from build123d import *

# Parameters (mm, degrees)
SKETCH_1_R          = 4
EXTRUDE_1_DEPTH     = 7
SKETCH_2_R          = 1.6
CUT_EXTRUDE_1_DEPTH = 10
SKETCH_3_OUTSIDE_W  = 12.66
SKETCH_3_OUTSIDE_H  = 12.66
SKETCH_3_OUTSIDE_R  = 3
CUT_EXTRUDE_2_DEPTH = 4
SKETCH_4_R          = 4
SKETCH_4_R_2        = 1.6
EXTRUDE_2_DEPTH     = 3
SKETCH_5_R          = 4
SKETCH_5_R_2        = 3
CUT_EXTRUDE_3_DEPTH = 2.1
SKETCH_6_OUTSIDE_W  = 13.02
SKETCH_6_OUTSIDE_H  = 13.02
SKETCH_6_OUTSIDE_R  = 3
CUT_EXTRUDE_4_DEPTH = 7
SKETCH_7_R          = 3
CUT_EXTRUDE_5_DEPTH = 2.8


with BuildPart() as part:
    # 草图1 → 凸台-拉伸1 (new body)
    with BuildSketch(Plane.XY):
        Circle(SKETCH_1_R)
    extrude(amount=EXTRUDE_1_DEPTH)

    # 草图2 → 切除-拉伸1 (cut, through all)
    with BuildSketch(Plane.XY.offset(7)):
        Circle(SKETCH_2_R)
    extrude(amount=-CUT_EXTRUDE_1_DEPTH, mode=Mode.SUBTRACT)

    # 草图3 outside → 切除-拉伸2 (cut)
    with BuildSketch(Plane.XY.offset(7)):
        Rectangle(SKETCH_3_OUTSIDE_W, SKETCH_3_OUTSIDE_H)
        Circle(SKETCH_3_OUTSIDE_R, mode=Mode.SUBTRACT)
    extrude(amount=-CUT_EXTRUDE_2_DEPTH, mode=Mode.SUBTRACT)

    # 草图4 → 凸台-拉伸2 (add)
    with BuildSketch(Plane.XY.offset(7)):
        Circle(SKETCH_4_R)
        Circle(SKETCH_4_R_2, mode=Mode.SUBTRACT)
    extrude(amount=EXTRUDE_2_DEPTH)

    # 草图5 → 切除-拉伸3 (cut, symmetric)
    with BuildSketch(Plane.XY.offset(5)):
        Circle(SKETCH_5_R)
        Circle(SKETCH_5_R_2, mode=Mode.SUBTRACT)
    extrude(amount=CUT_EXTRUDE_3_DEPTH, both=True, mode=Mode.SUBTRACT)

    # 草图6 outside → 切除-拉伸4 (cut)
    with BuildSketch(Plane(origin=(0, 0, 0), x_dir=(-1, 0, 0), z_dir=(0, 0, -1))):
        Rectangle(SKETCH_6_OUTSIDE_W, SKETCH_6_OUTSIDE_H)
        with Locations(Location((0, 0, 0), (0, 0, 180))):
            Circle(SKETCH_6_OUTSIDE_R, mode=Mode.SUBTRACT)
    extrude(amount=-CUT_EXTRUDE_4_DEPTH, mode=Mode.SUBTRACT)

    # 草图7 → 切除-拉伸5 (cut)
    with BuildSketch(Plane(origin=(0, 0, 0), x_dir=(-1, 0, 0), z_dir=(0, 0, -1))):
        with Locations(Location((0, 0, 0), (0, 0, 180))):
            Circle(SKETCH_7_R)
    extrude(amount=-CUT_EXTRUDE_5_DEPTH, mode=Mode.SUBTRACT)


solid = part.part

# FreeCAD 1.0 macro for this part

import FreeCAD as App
import Part
import Sketcher
Q = App.Units.Quantity

doc = App.newDocument("Part")
body = doc.addObject("PartDesign::Body", "Body")

# Sketch on XY plane
sketch1 = body.newObject("Sketcher::SketchObject", "Sketch")
sketch1.AttachmentSupport = (doc.getObject("XY_Plane"), [""])
sketch1.MapMode = "FlatFace"
sketch1.addGeometry(Part.Circle(App.Vector(0, 0, 0), App.Vector(0, 0, 1), 4), False)
sketch1.addConstraint([
    Sketcher.Constraint("Coincident", 0, 3, -1, 1),
    Sketcher.Constraint("Diameter", 0, Q("8 mm")),
])
pad1 = body.newObject("PartDesign::Pad", "Pad")
pad1.Profile = sketch1
pad1.Length = 7

# Sketch on XY plane
sketch2 = body.newObject("Sketcher::SketchObject", "Sketch001")
sketch2.AttachmentSupport = (doc.getObject("XY_Plane"), [""])
sketch2.MapMode = "FlatFace"
sketch2.AttachmentOffset = App.Placement(App.Vector(0, 0, 7), App.Rotation())
sketch2.addGeometry(Part.Circle(App.Vector(0, 0, 0), App.Vector(0, 0, 1), 1.6), False)
sketch2.addConstraint([
    Sketcher.Constraint("Coincident", 0, 3, -1, 1),
    Sketcher.Constraint("Diameter", 0, Q("3.2 mm")),
])
pocket1 = body.newObject("PartDesign::Pocket", "Pocket")
pocket1.Profile = sketch2
pocket1.Type = "ThroughAll"

# Sketch on XY plane
sketch3 = body.newObject("Sketcher::SketchObject", "Sketch002")
sketch3.AttachmentSupport = (doc.getObject("XY_Plane"), [""])
sketch3.MapMode = "FlatFace"
sketch3.AttachmentOffset = App.Placement(App.Vector(0, 0, 7), App.Rotation())
sketch3.addGeometry([
    Part.LineSegment(App.Vector(-6.3, 6.3, 0), App.Vector(-6.3, -6.3, 0)),  # 0
    Part.LineSegment(App.Vector(-6.3, -6.3, 0), App.Vector(6.3, -6.3, 0)),  # 1
    Part.LineSegment(App.Vector(6.3, -6.3, 0), App.Vector(6.3, 6.3, 0)),  # 2
    Part.LineSegment(App.Vector(6.3, 6.3, 0), App.Vector(-6.3, 6.3, 0)),  # 3
    Part.Circle(App.Vector(0, 0, 0), App.Vector(0, 0, 1), 3),  # 4
], False)
sketch3.addConstraint([
    Sketcher.Constraint("Coincident", 0, 2, 1, 1),
    Sketcher.Constraint("Coincident", 1, 2, 2, 1),
    Sketcher.Constraint("Coincident", 2, 2, 3, 1),
    Sketcher.Constraint("Coincident", 3, 2, 0, 1),
    Sketcher.Constraint("Vertical", 0),
    Sketcher.Constraint("Horizontal", 1),
    Sketcher.Constraint("Vertical", 2),
    Sketcher.Constraint("Horizontal", 3),
    Sketcher.Constraint("Coincident", 4, 3, -1, 1),
    Sketcher.Constraint("Symmetric", 0, 2, 2, 2, -1, 1),
    Sketcher.Constraint("Equal", 3, 0),
    Sketcher.Constraint("Diameter", 4, Q("6 mm")),
    Sketcher.Constraint("DistanceX", 1, 1, 1, 2, Q("12.66 mm")),
])
pocket2 = body.newObject("PartDesign::Pocket", "Pocket001")
pocket2.Profile = sketch3
pocket2.Length = 4

# Sketch on XY plane
sketch4 = body.newObject("Sketcher::SketchObject", "Sketch003")
sketch4.AttachmentSupport = (doc.getObject("XY_Plane"), [""])
sketch4.MapMode = "FlatFace"
sketch4.AttachmentOffset = App.Placement(App.Vector(0, 0, 7), App.Rotation())
sketch4.addGeometry([
    Part.Circle(App.Vector(0, 0, 0), App.Vector(0, 0, 1), 4),
    Part.Circle(App.Vector(0, 0, 0), App.Vector(0, 0, 1), 1.6),
], False)
sketch4.addConstraint([
    Sketcher.Constraint("Coincident", 0, 3, -1, 1),
    Sketcher.Constraint("Coincident", 1, 3, -1, 1),
    Sketcher.Constraint("Diameter", 0, Q("8 mm")),
    Sketcher.Constraint("Diameter", 1, Q("3.2 mm")),
])
pad2 = body.newObject("PartDesign::Pad", "Pad001")
pad2.Profile = sketch4
pad2.Length = 3

# Sketch on XY plane
sketch5 = body.newObject("Sketcher::SketchObject", "Sketch004")
sketch5.AttachmentSupport = (doc.getObject("XY_Plane"), [""])
sketch5.MapMode = "FlatFace"
sketch5.AttachmentOffset = App.Placement(App.Vector(0, 0, 5), App.Rotation())
sketch5.addGeometry([
    Part.Circle(App.Vector(0, 0, 0), App.Vector(0, 0, 1), 4),
    Part.Circle(App.Vector(0, 0, 0), App.Vector(0, 0, 1), 3),
], False)
sketch5.addConstraint([
    Sketcher.Constraint("Coincident", 0, 3, -1, 1),
    Sketcher.Constraint("Coincident", 1, 3, -1, 1),
    Sketcher.Constraint("Diameter", 0, Q("8 mm")),
    Sketcher.Constraint("Diameter", 1, Q("6 mm")),
])
pocket3 = body.newObject("PartDesign::Pocket", "Pocket002")
pocket3.Profile = sketch5
pocket3.Length = 4.2
pocket3.Midplane = True

# Sketch on XY plane
sketch6 = body.newObject("Sketcher::SketchObject", "Sketch005")
sketch6.AttachmentSupport = (doc.getObject("XY_Plane"), [""])
sketch6.MapMode = "FlatFace"
sketch6.addGeometry([
    Part.LineSegment(App.Vector(6.5, 6.5, 0), App.Vector(6.5, -6.5, 0)),  # 0
    Part.LineSegment(App.Vector(6.5, -6.5, 0), App.Vector(-6.5, -6.5, 0)),  # 1
    Part.LineSegment(App.Vector(-6.5, -6.5, 0), App.Vector(-6.5, 6.5, 0)),  # 2
    Part.LineSegment(App.Vector(-6.5, 6.5, 0), App.Vector(6.5, 6.5, 0)),  # 3
    Part.Circle(App.Vector(0, 0, 0), App.Vector(0, 0, 1), 3),  # 4
], False)
sketch6.addConstraint([
    Sketcher.Constraint("Coincident", 0, 2, 1, 1),
    Sketcher.Constraint("Coincident", 1, 2, 2, 1),
    Sketcher.Constraint("Coincident", 2, 2, 3, 1),
    Sketcher.Constraint("Coincident", 3, 2, 0, 1),
    Sketcher.Constraint("Vertical", 0),
    Sketcher.Constraint("Horizontal", 1),
    Sketcher.Constraint("Vertical", 2),
    Sketcher.Constraint("Horizontal", 3),
    Sketcher.Constraint("Coincident", 4, 3, -1, 1),
    Sketcher.Constraint("Symmetric", 0, 2, 2, 2, -1, 1),
    Sketcher.Constraint("Equal", 3, 0),
    Sketcher.Constraint("Diameter", 4, Q("6 mm")),
    Sketcher.Constraint("DistanceX", 1, 2, 1, 1, Q("13.02 mm")),
])
pocket4 = body.newObject("PartDesign::Pocket", "Pocket003")
pocket4.Profile = sketch6
pocket4.Length = 7
pocket4.Reversed = True

# Sketch on XY plane
sketch7 = body.newObject("Sketcher::SketchObject", "Sketch006")
sketch7.AttachmentSupport = (doc.getObject("XY_Plane"), [""])
sketch7.MapMode = "FlatFace"
sketch7.addGeometry(Part.Circle(App.Vector(0, 0, 0), App.Vector(0, 0, 1), 3), False)
sketch7.addConstraint([
    Sketcher.Constraint("Coincident", 0, 3, -1, 1),
    Sketcher.Constraint("Diameter", 0, Q("6 mm")),
])
pocket5 = body.newObject("PartDesign::Pocket", "Pocket004")
pocket5.Profile = sketch7
pocket5.Length = 2.8
pocket5.Reversed = True

doc.recompute()
